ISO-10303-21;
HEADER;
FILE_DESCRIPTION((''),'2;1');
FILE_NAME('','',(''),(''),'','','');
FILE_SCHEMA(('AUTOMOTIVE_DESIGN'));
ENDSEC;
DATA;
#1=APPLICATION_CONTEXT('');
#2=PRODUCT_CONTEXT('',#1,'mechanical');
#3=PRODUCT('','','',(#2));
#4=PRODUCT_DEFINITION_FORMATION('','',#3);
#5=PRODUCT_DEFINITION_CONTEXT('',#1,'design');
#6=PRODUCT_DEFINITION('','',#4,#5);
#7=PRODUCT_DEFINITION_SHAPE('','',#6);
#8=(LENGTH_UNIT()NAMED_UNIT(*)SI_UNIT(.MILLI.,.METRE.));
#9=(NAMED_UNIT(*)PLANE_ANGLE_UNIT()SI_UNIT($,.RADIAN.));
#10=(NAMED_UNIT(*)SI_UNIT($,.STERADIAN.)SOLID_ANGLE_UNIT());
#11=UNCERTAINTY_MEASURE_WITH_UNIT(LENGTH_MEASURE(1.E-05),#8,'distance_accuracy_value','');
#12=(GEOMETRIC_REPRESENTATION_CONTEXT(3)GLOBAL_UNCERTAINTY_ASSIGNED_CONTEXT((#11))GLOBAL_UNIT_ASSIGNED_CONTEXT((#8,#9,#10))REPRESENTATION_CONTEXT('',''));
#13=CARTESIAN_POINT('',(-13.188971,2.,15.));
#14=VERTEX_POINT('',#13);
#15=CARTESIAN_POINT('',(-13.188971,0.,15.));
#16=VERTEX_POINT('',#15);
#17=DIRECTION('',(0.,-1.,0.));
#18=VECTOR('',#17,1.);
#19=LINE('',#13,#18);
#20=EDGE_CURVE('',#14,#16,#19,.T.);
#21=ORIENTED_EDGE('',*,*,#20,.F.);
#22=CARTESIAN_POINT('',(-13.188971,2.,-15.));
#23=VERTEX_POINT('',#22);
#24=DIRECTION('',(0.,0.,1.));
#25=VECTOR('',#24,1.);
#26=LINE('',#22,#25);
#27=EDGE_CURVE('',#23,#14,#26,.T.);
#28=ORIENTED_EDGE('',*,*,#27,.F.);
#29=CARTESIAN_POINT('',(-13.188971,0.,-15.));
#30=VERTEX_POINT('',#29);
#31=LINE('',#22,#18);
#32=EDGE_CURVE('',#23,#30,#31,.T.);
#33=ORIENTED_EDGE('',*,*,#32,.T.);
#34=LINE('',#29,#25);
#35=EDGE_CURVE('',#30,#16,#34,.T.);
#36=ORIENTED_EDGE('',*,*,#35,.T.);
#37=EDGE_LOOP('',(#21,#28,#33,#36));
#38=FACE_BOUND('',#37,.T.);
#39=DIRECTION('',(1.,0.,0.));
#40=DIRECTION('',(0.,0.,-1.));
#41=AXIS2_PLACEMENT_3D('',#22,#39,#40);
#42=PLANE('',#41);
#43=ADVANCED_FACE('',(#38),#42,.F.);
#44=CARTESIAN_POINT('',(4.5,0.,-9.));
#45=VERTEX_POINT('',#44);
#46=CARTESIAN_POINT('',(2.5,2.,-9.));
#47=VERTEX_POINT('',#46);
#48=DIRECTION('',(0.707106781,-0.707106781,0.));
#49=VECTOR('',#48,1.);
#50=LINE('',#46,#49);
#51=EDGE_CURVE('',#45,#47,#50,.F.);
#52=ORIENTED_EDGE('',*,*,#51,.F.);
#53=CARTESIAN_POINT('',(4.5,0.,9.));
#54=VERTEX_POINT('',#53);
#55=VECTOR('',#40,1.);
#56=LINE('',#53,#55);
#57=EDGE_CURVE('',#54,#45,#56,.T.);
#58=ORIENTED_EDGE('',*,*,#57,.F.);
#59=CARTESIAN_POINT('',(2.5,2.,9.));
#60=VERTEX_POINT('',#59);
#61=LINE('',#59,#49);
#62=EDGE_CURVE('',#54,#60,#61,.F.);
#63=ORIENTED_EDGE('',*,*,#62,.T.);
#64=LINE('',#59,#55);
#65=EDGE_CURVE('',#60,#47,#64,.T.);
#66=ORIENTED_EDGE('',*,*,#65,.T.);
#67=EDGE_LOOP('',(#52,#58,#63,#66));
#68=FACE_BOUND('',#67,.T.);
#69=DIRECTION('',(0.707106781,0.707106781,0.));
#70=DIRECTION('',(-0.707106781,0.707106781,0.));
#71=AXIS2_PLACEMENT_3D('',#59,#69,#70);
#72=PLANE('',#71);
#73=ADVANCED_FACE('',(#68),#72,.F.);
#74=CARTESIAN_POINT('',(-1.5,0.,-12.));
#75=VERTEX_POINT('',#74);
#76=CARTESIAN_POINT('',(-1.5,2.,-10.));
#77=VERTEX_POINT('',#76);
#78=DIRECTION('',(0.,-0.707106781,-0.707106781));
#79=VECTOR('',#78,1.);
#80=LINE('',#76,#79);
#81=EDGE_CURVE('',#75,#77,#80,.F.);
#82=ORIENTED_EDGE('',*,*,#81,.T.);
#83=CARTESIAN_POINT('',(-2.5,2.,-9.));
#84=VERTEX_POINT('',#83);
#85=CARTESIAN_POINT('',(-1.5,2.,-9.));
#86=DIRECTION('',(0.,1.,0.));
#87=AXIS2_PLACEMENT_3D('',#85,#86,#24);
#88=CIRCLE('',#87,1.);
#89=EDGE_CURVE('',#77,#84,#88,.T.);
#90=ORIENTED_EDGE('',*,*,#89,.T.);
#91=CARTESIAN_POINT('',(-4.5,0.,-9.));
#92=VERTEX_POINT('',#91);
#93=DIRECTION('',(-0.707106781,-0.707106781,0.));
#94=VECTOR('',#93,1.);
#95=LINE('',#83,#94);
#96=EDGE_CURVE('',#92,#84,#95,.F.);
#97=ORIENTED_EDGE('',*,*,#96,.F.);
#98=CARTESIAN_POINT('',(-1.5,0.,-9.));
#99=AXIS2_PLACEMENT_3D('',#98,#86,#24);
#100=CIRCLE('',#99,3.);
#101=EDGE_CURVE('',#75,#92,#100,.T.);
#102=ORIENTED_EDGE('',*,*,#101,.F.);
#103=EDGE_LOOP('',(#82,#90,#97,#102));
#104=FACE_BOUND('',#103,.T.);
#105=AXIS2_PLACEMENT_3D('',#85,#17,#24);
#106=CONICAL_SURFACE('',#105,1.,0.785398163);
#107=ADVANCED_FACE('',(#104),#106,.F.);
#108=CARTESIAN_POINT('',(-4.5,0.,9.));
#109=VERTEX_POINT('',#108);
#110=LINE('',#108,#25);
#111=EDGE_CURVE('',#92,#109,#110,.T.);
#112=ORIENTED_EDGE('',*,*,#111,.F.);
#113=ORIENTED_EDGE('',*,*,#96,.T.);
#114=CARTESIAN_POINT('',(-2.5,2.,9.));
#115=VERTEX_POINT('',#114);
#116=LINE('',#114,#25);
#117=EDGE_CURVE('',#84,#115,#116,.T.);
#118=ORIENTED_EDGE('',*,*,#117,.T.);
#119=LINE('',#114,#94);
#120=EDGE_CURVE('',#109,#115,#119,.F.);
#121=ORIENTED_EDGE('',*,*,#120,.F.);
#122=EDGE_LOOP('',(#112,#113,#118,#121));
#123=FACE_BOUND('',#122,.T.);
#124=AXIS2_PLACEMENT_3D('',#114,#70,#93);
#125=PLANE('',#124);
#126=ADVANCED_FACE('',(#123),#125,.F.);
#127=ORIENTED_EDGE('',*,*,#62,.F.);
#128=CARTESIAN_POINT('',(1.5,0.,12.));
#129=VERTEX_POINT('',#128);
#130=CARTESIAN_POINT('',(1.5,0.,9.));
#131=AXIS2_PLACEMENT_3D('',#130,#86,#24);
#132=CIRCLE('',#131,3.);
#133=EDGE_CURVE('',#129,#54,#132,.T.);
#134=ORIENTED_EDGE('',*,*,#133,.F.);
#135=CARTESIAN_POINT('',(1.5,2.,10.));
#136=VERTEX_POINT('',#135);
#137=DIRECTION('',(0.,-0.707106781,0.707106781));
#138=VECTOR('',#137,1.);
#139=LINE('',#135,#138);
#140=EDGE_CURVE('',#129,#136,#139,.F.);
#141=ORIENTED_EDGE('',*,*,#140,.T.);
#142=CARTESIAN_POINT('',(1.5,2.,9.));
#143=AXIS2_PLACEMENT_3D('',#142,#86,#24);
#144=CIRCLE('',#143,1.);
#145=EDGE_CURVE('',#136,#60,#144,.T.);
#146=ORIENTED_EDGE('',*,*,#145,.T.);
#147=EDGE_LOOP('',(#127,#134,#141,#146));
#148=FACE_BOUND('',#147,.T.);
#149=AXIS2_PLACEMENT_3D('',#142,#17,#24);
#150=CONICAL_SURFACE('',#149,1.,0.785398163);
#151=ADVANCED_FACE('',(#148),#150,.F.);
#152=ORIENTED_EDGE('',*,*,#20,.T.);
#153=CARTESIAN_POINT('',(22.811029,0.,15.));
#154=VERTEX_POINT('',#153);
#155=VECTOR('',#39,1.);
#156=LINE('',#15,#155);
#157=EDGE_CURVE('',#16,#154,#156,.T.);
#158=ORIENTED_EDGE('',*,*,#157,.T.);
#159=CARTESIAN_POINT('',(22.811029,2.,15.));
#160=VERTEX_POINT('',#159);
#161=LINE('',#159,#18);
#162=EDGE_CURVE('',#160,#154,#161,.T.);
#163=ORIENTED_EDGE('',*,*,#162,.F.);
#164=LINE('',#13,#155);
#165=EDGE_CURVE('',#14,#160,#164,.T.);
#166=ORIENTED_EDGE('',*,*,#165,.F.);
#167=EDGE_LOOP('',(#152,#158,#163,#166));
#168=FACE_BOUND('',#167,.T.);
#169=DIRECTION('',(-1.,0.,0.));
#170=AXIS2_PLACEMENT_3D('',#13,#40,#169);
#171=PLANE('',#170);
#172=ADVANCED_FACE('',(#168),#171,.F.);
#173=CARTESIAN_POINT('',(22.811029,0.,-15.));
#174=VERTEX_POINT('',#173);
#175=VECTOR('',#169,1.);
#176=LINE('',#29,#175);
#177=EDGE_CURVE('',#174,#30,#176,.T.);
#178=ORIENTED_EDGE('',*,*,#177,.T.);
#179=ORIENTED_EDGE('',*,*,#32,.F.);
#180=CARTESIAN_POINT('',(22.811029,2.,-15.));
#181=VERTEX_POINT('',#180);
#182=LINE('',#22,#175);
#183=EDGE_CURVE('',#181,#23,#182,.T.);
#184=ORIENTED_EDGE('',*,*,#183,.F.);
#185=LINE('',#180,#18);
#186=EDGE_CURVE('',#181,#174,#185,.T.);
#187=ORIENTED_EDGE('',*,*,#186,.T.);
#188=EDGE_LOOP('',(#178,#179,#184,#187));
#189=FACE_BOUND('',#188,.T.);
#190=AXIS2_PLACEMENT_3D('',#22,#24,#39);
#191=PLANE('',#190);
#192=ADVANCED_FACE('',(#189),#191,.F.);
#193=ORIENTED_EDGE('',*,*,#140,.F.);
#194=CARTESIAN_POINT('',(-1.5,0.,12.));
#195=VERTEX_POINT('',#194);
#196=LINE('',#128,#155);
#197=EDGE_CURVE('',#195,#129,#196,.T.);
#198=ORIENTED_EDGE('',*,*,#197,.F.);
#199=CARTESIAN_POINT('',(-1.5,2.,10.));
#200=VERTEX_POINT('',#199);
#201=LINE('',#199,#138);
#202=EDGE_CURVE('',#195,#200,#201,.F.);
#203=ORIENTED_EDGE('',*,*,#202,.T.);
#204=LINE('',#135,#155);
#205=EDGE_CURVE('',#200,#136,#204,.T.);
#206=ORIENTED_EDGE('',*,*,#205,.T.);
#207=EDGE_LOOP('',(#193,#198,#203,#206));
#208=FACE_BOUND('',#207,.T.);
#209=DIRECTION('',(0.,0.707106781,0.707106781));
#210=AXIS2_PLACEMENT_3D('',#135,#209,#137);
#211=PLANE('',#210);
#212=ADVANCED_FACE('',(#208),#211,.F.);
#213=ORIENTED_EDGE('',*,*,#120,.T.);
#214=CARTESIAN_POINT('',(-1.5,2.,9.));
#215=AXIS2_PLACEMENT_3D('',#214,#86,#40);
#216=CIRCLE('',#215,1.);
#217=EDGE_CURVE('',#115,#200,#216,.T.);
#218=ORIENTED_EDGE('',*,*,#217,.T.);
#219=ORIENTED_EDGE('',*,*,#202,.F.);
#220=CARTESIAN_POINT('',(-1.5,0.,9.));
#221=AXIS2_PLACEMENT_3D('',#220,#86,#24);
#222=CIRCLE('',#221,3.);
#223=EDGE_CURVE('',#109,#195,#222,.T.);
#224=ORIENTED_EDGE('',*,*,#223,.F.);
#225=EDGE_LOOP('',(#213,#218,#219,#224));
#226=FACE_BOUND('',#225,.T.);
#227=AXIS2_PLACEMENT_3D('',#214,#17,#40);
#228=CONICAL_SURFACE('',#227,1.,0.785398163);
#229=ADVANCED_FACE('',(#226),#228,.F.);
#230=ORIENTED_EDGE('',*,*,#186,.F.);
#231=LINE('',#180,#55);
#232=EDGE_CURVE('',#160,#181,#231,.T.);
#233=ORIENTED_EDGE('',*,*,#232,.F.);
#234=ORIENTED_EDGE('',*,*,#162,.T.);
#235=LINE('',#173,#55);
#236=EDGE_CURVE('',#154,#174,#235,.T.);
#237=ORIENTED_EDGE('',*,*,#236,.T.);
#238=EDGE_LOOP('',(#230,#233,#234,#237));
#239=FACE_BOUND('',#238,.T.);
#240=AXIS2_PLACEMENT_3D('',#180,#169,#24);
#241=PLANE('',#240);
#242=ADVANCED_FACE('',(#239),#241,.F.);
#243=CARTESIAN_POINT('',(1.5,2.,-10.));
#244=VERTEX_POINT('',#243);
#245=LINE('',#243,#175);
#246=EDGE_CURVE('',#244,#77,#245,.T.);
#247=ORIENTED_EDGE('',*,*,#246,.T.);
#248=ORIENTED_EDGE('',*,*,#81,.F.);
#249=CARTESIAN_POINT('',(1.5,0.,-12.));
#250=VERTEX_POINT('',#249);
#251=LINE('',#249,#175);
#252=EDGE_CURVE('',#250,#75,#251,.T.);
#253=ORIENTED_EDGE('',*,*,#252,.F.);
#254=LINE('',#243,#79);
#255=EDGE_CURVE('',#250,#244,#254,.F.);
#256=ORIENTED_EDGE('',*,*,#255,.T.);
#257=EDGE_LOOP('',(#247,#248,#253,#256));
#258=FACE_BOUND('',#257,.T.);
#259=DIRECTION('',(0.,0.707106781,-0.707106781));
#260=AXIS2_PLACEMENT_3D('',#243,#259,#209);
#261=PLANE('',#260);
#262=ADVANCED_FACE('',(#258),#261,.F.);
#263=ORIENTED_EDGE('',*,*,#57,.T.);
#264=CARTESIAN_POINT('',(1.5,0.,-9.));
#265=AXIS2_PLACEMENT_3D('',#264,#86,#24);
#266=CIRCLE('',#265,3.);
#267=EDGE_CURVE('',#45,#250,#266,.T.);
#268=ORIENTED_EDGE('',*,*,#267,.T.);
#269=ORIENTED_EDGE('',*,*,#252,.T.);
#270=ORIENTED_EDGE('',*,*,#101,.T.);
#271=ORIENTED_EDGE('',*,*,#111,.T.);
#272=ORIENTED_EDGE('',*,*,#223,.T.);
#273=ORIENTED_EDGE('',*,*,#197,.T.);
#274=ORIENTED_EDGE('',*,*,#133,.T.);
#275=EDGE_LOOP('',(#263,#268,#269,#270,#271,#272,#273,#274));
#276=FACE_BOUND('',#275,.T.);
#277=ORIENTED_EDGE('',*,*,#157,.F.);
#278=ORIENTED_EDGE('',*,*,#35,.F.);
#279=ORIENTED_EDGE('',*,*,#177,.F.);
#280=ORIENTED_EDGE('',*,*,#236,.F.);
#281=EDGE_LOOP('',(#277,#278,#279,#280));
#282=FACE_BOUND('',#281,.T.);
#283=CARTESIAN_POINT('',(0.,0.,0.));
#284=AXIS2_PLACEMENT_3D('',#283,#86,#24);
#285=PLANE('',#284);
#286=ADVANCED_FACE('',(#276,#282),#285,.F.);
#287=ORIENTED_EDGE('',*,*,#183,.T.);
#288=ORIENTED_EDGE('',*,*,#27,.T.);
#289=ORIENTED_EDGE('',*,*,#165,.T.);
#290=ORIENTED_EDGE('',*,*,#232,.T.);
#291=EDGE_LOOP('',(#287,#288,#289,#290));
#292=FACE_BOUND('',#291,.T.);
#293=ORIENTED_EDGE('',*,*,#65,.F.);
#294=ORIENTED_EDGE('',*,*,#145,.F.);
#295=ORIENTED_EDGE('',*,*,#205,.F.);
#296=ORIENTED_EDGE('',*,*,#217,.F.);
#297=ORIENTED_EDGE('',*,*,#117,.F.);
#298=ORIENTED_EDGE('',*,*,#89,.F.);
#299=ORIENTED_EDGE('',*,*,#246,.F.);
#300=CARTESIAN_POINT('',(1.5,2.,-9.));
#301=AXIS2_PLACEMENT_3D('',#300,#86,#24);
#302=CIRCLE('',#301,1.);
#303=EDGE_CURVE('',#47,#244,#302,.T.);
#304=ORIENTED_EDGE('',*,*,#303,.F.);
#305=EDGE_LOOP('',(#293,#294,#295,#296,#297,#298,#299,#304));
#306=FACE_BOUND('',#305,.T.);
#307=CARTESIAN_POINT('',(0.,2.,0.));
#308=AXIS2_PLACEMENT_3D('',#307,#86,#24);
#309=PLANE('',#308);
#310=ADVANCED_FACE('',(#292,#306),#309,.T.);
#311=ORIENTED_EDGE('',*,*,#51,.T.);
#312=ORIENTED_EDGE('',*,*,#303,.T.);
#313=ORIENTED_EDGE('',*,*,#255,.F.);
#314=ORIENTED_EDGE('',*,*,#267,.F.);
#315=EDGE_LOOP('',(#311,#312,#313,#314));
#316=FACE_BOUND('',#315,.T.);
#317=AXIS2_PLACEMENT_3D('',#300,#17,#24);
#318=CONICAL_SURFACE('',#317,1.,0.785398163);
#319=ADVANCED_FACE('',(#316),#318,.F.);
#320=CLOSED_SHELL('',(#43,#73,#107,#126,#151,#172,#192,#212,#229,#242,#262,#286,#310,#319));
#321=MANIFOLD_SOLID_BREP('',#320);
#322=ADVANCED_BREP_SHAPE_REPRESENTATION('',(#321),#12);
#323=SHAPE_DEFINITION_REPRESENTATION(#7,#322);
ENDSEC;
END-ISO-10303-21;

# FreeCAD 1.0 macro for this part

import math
import FreeCAD as App
import Part
import Sketcher
Q = App.Units.Quantity


def add_polygon(sketch, points):
    """Adds a closed chain of lines whose ends are joined by coincident constraints."""
    first, n = sketch.GeometryCount, len(points)
    for a, b in zip(points, points[1:] + points[:1]):
        sketch.addGeometry(Part.LineSegment(App.Vector(*a, 0), App.Vector(*b, 0)), False)
    for i in range(n):
        sketch.addConstraint(Sketcher.Constraint("Coincident", first + i, 2, first + (i + 1) % n, 1))

doc = App.newDocument("Part")
params = doc.addObject("Spreadsheet::Sheet", "Params")
for row, (alias, value) in enumerate([
    ("sketch1_width", "36 mm"),
    ("sketch1_height", "30 mm"),
    ("pad1_length", "2 mm"),
    ("sketch2_radius", "1 mm"),
    ("sketch2_width", "3 mm"),
    ("sketch2_height", "18 mm"),
    ("pocket1_taper", "45 deg"),
], start=1):
    params.set(f"A{row}", alias)
    params.set(f"B{row}", "=" + value)
    params.setAlias(f"B{row}", alias)

body = doc.addObject("PartDesign::Body", "Body")

# Sketch on XZ plane
sketch1 = body.newObject("Sketcher::SketchObject", "Sketch")
sketch1.AttachmentSupport = (doc.getObject("XZ_Plane"), [""])
sketch1.MapMode = "FlatFace"
add_polygon(sketch1, [(-13, -15), (-13, 15), (23, 15), (23, -15)])  # lines 0-3
sketch1.addConstraint([
    Sketcher.Constraint("Vertical", 0),
    Sketcher.Constraint("Horizontal", 1),
    Sketcher.Constraint("Vertical", 2),
    Sketcher.Constraint("Horizontal", 3),
    Sketcher.Constraint("DistanceX", 1, 1, 1, 2, Q("36 mm")),
    Sketcher.Constraint("DistanceY", 0, 1, 0, 2, Q("30 mm")),
    Sketcher.Constraint("DistanceY", -1, 1, 0, 2, Q("15 mm")),
    Sketcher.Constraint("DistanceX", 0, 2, -1, 1, Q("13.188971 mm")),
])
sketch1.setExpression("Constraints[8]", "Params.sketch1_width")
sketch1.setExpression("Constraints[9]", "Params.sketch1_height")
pad1 = body.newObject("PartDesign::Pad", "Pad")
pad1.Profile = sketch1
pad1.setExpression("Length", "Params.pad1_length")
pad1.Reversed = True

# Sketch on XZ plane
sketch2 = body.newObject("Sketcher::SketchObject", "Sketch001")
sketch2.AttachmentSupport = (doc.getObject("XZ_Plane"), [""])
sketch2.MapMode = "FlatFace"
sketch2.AttachmentOffset = App.Placement(App.Vector(0, 0, -2), App.Rotation())
sketch2.addGeometry([
    Part.ArcOfCircle(Part.Circle(App.Vector(1.5, 9, 0), App.Vector(0, 0, 1), 1), math.radians(0), math.radians(90)),  # 0
    Part.LineSegment(App.Vector(2.5, 9, 0), App.Vector(2.5, -9, 0)),  # 1
    Part.ArcOfCircle(Part.Circle(App.Vector(1.5, -9, 0), App.Vector(0, 0, 1), 1), math.radians(-90), math.radians(0)),  # 2
    Part.LineSegment(App.Vector(1.5, -10, 0), App.Vector(-1.5, -10, 0)),  # 3
    Part.ArcOfCircle(Part.Circle(App.Vector(-1.5, -9, 0), App.Vector(0, 0, 1), 1), math.radians(-180), math.radians(-90)),  # 4
    Part.LineSegment(App.Vector(-2.5, -9, 0), App.Vector(-2.5, 9, 0)),  # 5
    Part.ArcOfCircle(Part.Circle(App.Vector(-1.5, 9, 0), App.Vector(0, 0, 1), 1), math.radians(90), math.radians(180)),  # 6
    Part.LineSegment(App.Vector(-1.5, 10, 0), App.Vector(1.5, 10, 0)),  # 7
], False)
sketch2.addConstraint([
    Sketcher.Constraint("Tangent", 0, 1, 1, 1),
    Sketcher.Constraint("Tangent", 1, 2, 2, 2),
    Sketcher.Constraint("Tangent", 2, 1, 3, 1),
    Sketcher.Constraint("Tangent", 3, 2, 4, 2),
    Sketcher.Constraint("Tangent", 4, 1, 5, 1),
    Sketcher.Constraint("Tangent", 5, 2, 6, 2),
    Sketcher.Constraint("Tangent", 6, 1, 7, 1),
    Sketcher.Constraint("Tangent", 7, 2, 0, 2),
    Sketcher.Constraint("Vertical", 1),
    Sketcher.Constraint("Horizontal", 3),
    Sketcher.Constraint("Vertical", 5),
    Sketcher.Constraint("Horizontal", 7),
    Sketcher.Constraint("Equal", 0, 2),
    Sketcher.Constraint("Equal", 2, 4),
    Sketcher.Constraint("Equal", 4, 6),
    Sketcher.Constraint("Symmetric", 0, 3, 4, 3, -1, 1),
    Sketcher.Constraint("Radius", 0, Q("1 mm")),
    Sketcher.Constraint("DistanceX", 3, 2, 3, 1, Q("3 mm")),
    Sketcher.Constraint("DistanceY", 1, 2, 1, 1, Q("18 mm")),
])
sketch2.setExpression("Constraints[16]", "Params.sketch2_radius")
sketch2.setExpression("Constraints[17]", "Params.sketch2_width")
sketch2.setExpression("Constraints[18]", "Params.sketch2_height")
pocket1 = body.newObject("PartDesign::Pocket", "Pocket")
pocket1.Profile = sketch2
pocket1.Type = "ThroughAll"
pocket1.Reversed = True
pocket1.setExpression("TaperAngle", "Params.pocket1_taper")

doc.recompute()
